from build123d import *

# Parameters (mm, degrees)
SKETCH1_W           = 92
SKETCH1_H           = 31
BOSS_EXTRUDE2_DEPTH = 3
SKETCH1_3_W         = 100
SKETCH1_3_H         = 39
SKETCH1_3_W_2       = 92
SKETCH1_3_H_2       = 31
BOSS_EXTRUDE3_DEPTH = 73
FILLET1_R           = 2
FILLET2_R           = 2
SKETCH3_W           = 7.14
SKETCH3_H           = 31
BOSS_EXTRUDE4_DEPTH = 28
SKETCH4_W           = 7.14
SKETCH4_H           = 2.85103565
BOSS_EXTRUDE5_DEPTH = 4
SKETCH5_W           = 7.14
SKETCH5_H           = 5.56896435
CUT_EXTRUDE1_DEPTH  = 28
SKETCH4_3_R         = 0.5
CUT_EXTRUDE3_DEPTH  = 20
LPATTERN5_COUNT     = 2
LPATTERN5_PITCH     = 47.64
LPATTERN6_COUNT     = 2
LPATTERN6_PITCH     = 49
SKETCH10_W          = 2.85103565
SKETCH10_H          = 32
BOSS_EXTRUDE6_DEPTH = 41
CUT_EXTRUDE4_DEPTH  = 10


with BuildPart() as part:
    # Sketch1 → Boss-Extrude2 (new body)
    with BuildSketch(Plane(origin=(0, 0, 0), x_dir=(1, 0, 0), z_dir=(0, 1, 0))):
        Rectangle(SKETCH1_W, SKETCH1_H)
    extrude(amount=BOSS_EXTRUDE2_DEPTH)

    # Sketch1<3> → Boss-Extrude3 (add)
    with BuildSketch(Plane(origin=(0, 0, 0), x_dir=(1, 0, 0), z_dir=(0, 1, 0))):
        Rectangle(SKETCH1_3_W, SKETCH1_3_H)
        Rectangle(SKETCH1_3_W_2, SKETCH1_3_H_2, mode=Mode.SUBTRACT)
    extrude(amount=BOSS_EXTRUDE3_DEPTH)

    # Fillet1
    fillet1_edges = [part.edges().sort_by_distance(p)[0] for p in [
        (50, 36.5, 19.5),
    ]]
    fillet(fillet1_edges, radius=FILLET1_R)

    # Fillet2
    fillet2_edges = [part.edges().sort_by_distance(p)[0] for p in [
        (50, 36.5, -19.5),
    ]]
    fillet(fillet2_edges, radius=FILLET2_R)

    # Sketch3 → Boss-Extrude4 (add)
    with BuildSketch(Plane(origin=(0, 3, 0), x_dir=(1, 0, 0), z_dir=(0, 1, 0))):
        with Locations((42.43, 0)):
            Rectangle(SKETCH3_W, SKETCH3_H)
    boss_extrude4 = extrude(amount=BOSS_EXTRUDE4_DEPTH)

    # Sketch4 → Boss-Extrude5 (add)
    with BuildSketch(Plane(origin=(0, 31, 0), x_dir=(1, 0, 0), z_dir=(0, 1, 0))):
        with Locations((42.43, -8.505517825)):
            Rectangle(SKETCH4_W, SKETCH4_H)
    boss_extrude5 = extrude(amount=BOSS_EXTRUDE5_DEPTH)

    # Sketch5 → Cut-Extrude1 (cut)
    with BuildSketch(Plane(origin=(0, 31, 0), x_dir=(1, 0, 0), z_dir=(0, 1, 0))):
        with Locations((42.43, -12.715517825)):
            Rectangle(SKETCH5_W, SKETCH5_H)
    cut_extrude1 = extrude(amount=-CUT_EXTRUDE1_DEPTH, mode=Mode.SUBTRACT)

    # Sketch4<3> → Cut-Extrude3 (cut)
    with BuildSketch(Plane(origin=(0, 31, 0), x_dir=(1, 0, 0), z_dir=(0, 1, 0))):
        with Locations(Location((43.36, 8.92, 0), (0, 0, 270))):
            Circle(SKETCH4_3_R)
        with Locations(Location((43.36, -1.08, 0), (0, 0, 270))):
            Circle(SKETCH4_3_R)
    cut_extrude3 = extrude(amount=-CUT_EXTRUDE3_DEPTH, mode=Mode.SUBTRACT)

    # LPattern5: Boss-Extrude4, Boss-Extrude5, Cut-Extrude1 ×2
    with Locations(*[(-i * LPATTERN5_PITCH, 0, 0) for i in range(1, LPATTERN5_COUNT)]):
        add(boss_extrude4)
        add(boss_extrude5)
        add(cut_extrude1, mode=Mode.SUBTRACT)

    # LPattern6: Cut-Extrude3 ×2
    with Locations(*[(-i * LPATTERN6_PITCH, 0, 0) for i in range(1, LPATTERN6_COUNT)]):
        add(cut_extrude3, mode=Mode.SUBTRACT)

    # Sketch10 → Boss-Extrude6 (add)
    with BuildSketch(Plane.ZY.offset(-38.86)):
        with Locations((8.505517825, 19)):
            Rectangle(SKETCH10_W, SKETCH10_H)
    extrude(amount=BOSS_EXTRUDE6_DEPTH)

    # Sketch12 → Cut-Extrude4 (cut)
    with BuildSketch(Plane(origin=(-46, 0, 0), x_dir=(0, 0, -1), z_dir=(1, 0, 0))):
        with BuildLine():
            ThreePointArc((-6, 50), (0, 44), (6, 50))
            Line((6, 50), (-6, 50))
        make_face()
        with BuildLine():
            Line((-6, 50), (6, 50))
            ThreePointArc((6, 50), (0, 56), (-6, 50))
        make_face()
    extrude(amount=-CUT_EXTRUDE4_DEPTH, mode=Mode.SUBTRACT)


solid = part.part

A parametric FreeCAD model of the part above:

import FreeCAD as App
import Part
import Sketcher


def edges_at(feature, points):
    """Names of the edges that pass closest to the given points."""
    edges = feature.Shape.Edges
    near = lambda p: min(range(len(edges)), key=lambda i: edges[i].distToShape(Part.Vertex(*p))[0])
    return sorted({f"Edge{near(p) + 1}" for p in points})

doc = App.newDocument("Part")
body = doc.addObject("PartDesign::Body", "Body")

# Sketch on XZ plane
sketch1 = body.newObject("Sketcher::SketchObject", "Sketch")
sketch1.AttachmentSupport = (doc.getObject("XZ_Plane"), [""])
sketch1.MapMode = "FlatFace"
sketch1.addGeometry([
    Part.LineSegment(App.Vector(-46, -16, 0), App.Vector(-46, 16, 0)),
    Part.LineSegment(App.Vector(-46, 16, 0), App.Vector(46, 16, 0)),
    Part.LineSegment(App.Vector(46, 16, 0), App.Vector(46, -16, 0)),
    Part.LineSegment(App.Vector(46, -16, 0), App.Vector(-46, -16, 0)),
], False)
sketch1.addConstraint([
    Sketcher.Constraint("Coincident", 0, 2, 1, 1),
    Sketcher.Constraint("Coincident", 1, 2, 2, 1),
    Sketcher.Constraint("Coincident", 2, 2, 3, 1),
    Sketcher.Constraint("Coincident", 3, 2, 0, 1),
    Sketcher.Constraint("Vertical", 0),
    Sketcher.Constraint("Horizontal", 1),
    Sketcher.Constraint("Vertical", 2),
    Sketcher.Constraint("Horizontal", 3),
    Sketcher.Constraint("Symmetric", 0, 2, 2, 2, -1, 1),
    Sketcher.Constraint("DistanceX", 1, 1, 1, 2, 92.0),
    Sketcher.Constraint("DistanceY", 0, 1, 0, 2, 31.0),
])
pad1 = body.newObject("PartDesign::Pad", "Pad")
pad1.Profile = sketch1
pad1.Length = 3
pad1.Reversed = True

# Sketch on XZ plane
sketch2 = body.newObject("Sketcher::SketchObject", "Sketch001")
sketch2.AttachmentSupport = (doc.getObject("XZ_Plane"), [""])
sketch2.MapMode = "FlatFace"
sketch2.addGeometry([
    Part.LineSegment(App.Vector(-50, -20, 0), App.Vector(-50, 20, 0)),  # 0
    Part.LineSegment(App.Vector(-50, 20, 0), App.Vector(50, 20, 0)),  # 1
    Part.LineSegment(App.Vector(50, 20, 0), App.Vector(50, -20, 0)),  # 2
    Part.LineSegment(App.Vector(50, -20, 0), App.Vector(-50, -20, 0)),  # 3
    Part.LineSegment(App.Vector(46, 16, 0), App.Vector(-46, 16, 0)),  # 4
    Part.LineSegment(App.Vector(-46, 16, 0), App.Vector(-46, -16, 0)),  # 5
    Part.LineSegment(App.Vector(-46, -16, 0), App.Vector(46, -16, 0)),  # 6
    Part.LineSegment(App.Vector(46, -16, 0), App.Vector(46, 16, 0)),  # 7
], False)
sketch2.addConstraint([
    Sketcher.Constraint("Coincident", 0, 2, 1, 1),
    Sketcher.Constraint("Coincident", 1, 2, 2, 1),
    Sketcher.Constraint("Coincident", 2, 2, 3, 1),
    Sketcher.Constraint("Coincident", 3, 2, 0, 1),
    Sketcher.Constraint("Coincident", 4, 2, 5, 1),
    Sketcher.Constraint("Coincident", 5, 2, 6, 1),
    Sketcher.Constraint("Coincident", 6, 2, 7, 1),
    Sketcher.Constraint("Coincident", 7, 2, 4, 1),
    Sketcher.Constraint("Vertical", 0),
    Sketcher.Constraint("Horizontal", 1),
    Sketcher.Constraint("Vertical", 2),
    Sketcher.Constraint("Horizontal", 3),
    Sketcher.Constraint("Horizontal", 4),
    Sketcher.Constraint("Vertical", 5),
    Sketcher.Constraint("Horizontal", 6),
    Sketcher.Constraint("Vertical", 7),
    Sketcher.Constraint("Symmetric", 0, 2, 2, 2, -1, 1),
    Sketcher.Constraint("Symmetric", 4, 2, 6, 2, -1, 1),
    Sketcher.Constraint("DistanceX", 1, 1, 1, 2, 100.0),
    Sketcher.Constraint("DistanceX", 4, 2, 4, 1, 92.0),
    Sketcher.Constraint("DistanceY", 0, 1, 0, 2, 39.0),
    Sketcher.Constraint("DistanceY", 5, 2, 5, 1, 31.0),
])
pad2 = body.newObject("PartDesign::Pad", "Pad001")
pad2.Profile = sketch2
pad2.Length = 73
pad2.Reversed = True
doc.recompute()

fillet = body.newObject("PartDesign::Fillet", "Fillet")
fillet.Base = (pad2, edges_at(pad2, [(50, 36.5, 19.5)]))
fillet.Radius = 2
doc.recompute()

fillet2 = body.newObject("PartDesign::Fillet", "Fillet001")
fillet2.Base = (fillet, edges_at(fillet, [(50, 36.5, -19.5)]))
fillet2.Radius = 2

# Sketch on XZ plane
sketch3 = body.newObject("Sketcher::SketchObject", "Sketch002")
sketch3.AttachmentSupport = (doc.getObject("XZ_Plane"), [""])
sketch3.MapMode = "FlatFace"
sketch3.AttachmentOffset = App.Placement(App.Vector(0, 0, -3), App.Rotation())
sketch3.addGeometry([
    Part.LineSegment(App.Vector(39, -16, 0), App.Vector(39, 16, 0)),
    Part.LineSegment(App.Vector(39, 16, 0), App.Vector(46, 16, 0)),
    Part.LineSegment(App.Vector(46, 16, 0), App.Vector(46, -16, 0)),
    Part.LineSegment(App.Vector(46, -16, 0), App.Vector(39, -16, 0)),
], False)
sketch3.addConstraint([
    Sketcher.Constraint("Coincident", 0, 2, 1, 1),
    Sketcher.Constraint("Coincident", 1, 2, 2, 1),
    Sketcher.Constraint("Coincident", 2, 2, 3, 1),
    Sketcher.Constraint("Coincident", 3, 2, 0, 1),
    Sketcher.Constraint("Vertical", 0),
    Sketcher.Constraint("Horizontal", 1),
    Sketcher.Constraint("Vertical", 2),
    Sketcher.Constraint("Horizontal", 3),
    Sketcher.Constraint("DistanceY", 0, 1, 0, 2, 31.0),
    Sketcher.Constraint("DistanceX", -1, 1, 1, 2, 46.0),
    Sketcher.Constraint("DistanceX", 1, 1, 1, 2, 7.14),
    Sketcher.Constraint("DistanceY", -1, 1, 0, 2, 15.5),
])
pad3 = body.newObject("PartDesign::Pad", "Pad002")
pad3.Profile = sketch3
pad3.Length = 28
pad3.Reversed = True

# Sketch on XZ plane
sketch4 = body.newObject("Sketcher::SketchObject", "Sketch003")
sketch4.AttachmentSupport = (doc.getObject("XZ_Plane"), [""])
sketch4.MapMode = "FlatFace"
sketch4.AttachmentOffset = App.Placement(App.Vector(0, 0, -31), App.Rotation())
sketch4.addGeometry([
    Part.LineSegment(App.Vector(38.9, 7.1, 0), App.Vector(38.9, 9.9, 0)),
    Part.LineSegment(App.Vector(38.9, 9.9, 0), App.Vector(46, 9.9, 0)),
    Part.LineSegment(App.Vector(46, 9.9, 0), App.Vector(46, 7.1, 0)),
    Part.LineSegment(App.Vector(46, 7.1, 0), App.Vector(38.9, 7.1, 0)),
], False)
sketch4.addConstraint([
    Sketcher.Constraint("Coincident", 0, 2, 1, 1),
    Sketcher.Constraint("Coincident", 1, 2, 2, 1),
    Sketcher.Constraint("Coincident", 2, 2, 3, 1),
    Sketcher.Constraint("Coincident", 3, 2, 0, 1),
    Sketcher.Constraint("Vertical", 0),
    Sketcher.Constraint("Horizontal", 1),
    Sketcher.Constraint("Vertical", 2),
    Sketcher.Constraint("Horizontal", 3),
    Sketcher.Constraint("DistanceX", -1, 1, 1, 2, 46.0),
    Sketcher.Constraint("DistanceX", 1, 1, 1, 2, 7.14),
    Sketcher.Constraint("DistanceY", -1, 1, 2, 2, 7.08),
    Sketcher.Constraint("DistanceY", 0, 1, 0, 2, 2.851036),
])
pad4 = body.newObject("PartDesign::Pad", "Pad003")
pad4.Profile = sketch4
pad4.Length = 4
pad4.Reversed = True

# Sketch on XZ plane
sketch5 = body.newObject("Sketcher::SketchObject", "Sketch004")
sketch5.AttachmentSupport = (doc.getObject("XZ_Plane"), [""])
sketch5.MapMode = "FlatFace"
sketch5.AttachmentOffset = App.Placement(App.Vector(0, 0, -31), App.Rotation())
sketch5.addGeometry([
    Part.LineSegment(App.Vector(39, 10, 0), App.Vector(39, 16, 0)),
    Part.LineSegment(App.Vector(39, 16, 0), App.Vector(46, 16, 0)),
    Part.LineSegment(App.Vector(46, 16, 0), App.Vector(46, 10, 0)),
    Part.LineSegment(App.Vector(46, 10, 0), App.Vector(39, 10, 0)),
], False)
sketch5.addConstraint([
    Sketcher.Constraint("Coincident", 0, 2, 1, 1),
    Sketcher.Constraint("Coincident", 1, 2, 2, 1),
    Sketcher.Constraint("Coincident", 2, 2, 3, 1),
    Sketcher.Constraint("Coincident", 3, 2, 0, 1),
    Sketcher.Constraint("Vertical", 0),
    Sketcher.Constraint("Horizontal", 1),
    Sketcher.Constraint("Vertical", 2),
    Sketcher.Constraint("Horizontal", 3),
    Sketcher.Constraint("DistanceX", -1, 1, 1, 2, 46.0),
    Sketcher.Constraint("DistanceX", 1, 1, 1, 2, 7.14),
    Sketcher.Constraint("DistanceY", -1, 1, 0, 2, 15.5),
    Sketcher.Constraint("DistanceY", 0, 1, 0, 2, 5.568964),
])
pocket1 = body.newObject("PartDesign::Pocket", "Pocket")
pocket1.Profile = sketch5
pocket1.Length = 28
pocket1.Reversed = True

# Sketch on XZ plane
sketch6 = body.newObject("Sketcher::SketchObject", "Sketch005")
sketch6.AttachmentSupport = (doc.getObject("XZ_Plane"), [""])
sketch6.MapMode = "FlatFace"
sketch6.AttachmentOffset = App.Placement(App.Vector(0, 0, -31), App.Rotation())
sketch6.addGeometry([
    Part.Circle(App.Vector(43.4, -8.9, 0), App.Vector(0, 0, 1), 0.5),
    Part.Circle(App.Vector(43.4, 1.1, 0), App.Vector(0, 0, 1), 0.5),
], False)
sketch6.addConstraint([
    Sketcher.Constraint("Equal", 0, 1),
    Sketcher.Constraint("Vertical", 0, 3, 1, 3),
    Sketcher.Constraint("Diameter", 0, 1.0),
    Sketcher.Constraint("DistanceY", 0, 3, 1, 3, 10.0),
    Sketcher.Constraint("DistanceX", -1, 1, 0, 3, 43.36),
    Sketcher.Constraint("DistanceY", 0, 3, -1, 1, 8.92),
])
pocket2 = body.newObject("PartDesign::Pocket", "Pocket001")
pocket2.Profile = sketch6
pocket2.Length = 20
pocket2.Reversed = True
doc.recompute()

linearpattern = body.newObject("PartDesign::LinearPattern", "LinearPattern")
linearpattern.Originals = [pad3, pad4, pocket1]
linearpattern.Direction = (doc.getObject("X_Axis"), [""])
linearpattern.Mode = "offset"
linearpattern.Offset = 47.64
linearpattern.Occurrences = 2
linearpattern.Reversed = True
body.Tip = linearpattern
doc.recompute()

linearpattern2 = body.newObject("PartDesign::LinearPattern", "LinearPattern001")
linearpattern2.Originals = [pocket2]
linearpattern2.Direction = (doc.getObject("X_Axis"), [""])
linearpattern2.Mode = "offset"
linearpattern2.Offset = 49
linearpattern2.Occurrences = 2
linearpattern2.Reversed = True
body.Tip = linearpattern2

# Sketch on YZ plane
sketch7 = body.newObject("Sketcher::SketchObject", "Sketch006")
sketch7.AttachmentSupport = (doc.getObject("YZ_Plane"), [""])
sketch7.MapMode = "FlatFace"
sketch7.AttachmentOffset = App.Placement(App.Vector(0, 0, 38.86), App.Rotation())
sketch7.addGeometry([
    Part.LineSegment(App.Vector(35, 7.1, 0), App.Vector(3, 7.1, 0)),
    Part.LineSegment(App.Vector(3, 7.1, 0), App.Vector(3, 9.9, 0)),
    Part.LineSegment(App.Vector(3, 9.9, 0), App.Vector(35, 9.9, 0)),
    Part.LineSegment(App.Vector(35, 9.9, 0), App.Vector(35, 7.1, 0)),
], False)
sketch7.addConstraint([
    Sketcher.Constraint("Coincident", 0, 2, 1, 1),
    Sketcher.Constraint("Coincident", 1, 2, 2, 1),
    Sketcher.Constraint("Coincident", 2, 2, 3, 1),
    Sketcher.Constraint("Coincident", 3, 2, 0, 1),
    Sketcher.Constraint("Horizontal", 0),
    Sketcher.Constraint("Vertical", 1),
    Sketcher.Constraint("Horizontal", 2),
    Sketcher.Constraint("Vertical", 3),
    Sketcher.Constraint("DistanceX", 0, 2, 0, 1, 32.0),
    Sketcher.Constraint("DistanceX", -1, 1, 0, 2, 3.0),
    Sketcher.Constraint("DistanceY", -1, 1, 0, 2, 7.08),
    Sketcher.Constraint("DistanceY", 1, 1, 1, 2, 2.851036),
])
pad5 = body.newObject("PartDesign::Pad", "Pad004")
pad5.Profile = sketch7
pad5.Length = 41
pad5.Reversed = True

# Sketch on YZ plane
sketch8 = body.newObject("Sketcher::SketchObject", "Sketch007")
sketch8.AttachmentSupport = (doc.getObject("YZ_Plane"), [""])
sketch8.MapMode = "FlatFace"
sketch8.AttachmentOffset = App.Placement(App.Vector(0, 0, -46), App.Rotation())
sketch8.addGeometry(Part.Circle(App.Vector(50, 0, 0), App.Vector(0, 0, 1), 6), False)
sketch8.addConstraint([
    Sketcher.Constraint("PointOnObject", 0, 3, -1),
    Sketcher.Constraint("Diameter", 0, 12.0),
    Sketcher.Constraint("DistanceX", -1, 1, 0, 3, 50.0),
])
pocket3 = body.newObject("PartDesign::Pocket", "Pocket002")
pocket3.Profile = sketch8
pocket3.Length = 10

doc.recompute()
